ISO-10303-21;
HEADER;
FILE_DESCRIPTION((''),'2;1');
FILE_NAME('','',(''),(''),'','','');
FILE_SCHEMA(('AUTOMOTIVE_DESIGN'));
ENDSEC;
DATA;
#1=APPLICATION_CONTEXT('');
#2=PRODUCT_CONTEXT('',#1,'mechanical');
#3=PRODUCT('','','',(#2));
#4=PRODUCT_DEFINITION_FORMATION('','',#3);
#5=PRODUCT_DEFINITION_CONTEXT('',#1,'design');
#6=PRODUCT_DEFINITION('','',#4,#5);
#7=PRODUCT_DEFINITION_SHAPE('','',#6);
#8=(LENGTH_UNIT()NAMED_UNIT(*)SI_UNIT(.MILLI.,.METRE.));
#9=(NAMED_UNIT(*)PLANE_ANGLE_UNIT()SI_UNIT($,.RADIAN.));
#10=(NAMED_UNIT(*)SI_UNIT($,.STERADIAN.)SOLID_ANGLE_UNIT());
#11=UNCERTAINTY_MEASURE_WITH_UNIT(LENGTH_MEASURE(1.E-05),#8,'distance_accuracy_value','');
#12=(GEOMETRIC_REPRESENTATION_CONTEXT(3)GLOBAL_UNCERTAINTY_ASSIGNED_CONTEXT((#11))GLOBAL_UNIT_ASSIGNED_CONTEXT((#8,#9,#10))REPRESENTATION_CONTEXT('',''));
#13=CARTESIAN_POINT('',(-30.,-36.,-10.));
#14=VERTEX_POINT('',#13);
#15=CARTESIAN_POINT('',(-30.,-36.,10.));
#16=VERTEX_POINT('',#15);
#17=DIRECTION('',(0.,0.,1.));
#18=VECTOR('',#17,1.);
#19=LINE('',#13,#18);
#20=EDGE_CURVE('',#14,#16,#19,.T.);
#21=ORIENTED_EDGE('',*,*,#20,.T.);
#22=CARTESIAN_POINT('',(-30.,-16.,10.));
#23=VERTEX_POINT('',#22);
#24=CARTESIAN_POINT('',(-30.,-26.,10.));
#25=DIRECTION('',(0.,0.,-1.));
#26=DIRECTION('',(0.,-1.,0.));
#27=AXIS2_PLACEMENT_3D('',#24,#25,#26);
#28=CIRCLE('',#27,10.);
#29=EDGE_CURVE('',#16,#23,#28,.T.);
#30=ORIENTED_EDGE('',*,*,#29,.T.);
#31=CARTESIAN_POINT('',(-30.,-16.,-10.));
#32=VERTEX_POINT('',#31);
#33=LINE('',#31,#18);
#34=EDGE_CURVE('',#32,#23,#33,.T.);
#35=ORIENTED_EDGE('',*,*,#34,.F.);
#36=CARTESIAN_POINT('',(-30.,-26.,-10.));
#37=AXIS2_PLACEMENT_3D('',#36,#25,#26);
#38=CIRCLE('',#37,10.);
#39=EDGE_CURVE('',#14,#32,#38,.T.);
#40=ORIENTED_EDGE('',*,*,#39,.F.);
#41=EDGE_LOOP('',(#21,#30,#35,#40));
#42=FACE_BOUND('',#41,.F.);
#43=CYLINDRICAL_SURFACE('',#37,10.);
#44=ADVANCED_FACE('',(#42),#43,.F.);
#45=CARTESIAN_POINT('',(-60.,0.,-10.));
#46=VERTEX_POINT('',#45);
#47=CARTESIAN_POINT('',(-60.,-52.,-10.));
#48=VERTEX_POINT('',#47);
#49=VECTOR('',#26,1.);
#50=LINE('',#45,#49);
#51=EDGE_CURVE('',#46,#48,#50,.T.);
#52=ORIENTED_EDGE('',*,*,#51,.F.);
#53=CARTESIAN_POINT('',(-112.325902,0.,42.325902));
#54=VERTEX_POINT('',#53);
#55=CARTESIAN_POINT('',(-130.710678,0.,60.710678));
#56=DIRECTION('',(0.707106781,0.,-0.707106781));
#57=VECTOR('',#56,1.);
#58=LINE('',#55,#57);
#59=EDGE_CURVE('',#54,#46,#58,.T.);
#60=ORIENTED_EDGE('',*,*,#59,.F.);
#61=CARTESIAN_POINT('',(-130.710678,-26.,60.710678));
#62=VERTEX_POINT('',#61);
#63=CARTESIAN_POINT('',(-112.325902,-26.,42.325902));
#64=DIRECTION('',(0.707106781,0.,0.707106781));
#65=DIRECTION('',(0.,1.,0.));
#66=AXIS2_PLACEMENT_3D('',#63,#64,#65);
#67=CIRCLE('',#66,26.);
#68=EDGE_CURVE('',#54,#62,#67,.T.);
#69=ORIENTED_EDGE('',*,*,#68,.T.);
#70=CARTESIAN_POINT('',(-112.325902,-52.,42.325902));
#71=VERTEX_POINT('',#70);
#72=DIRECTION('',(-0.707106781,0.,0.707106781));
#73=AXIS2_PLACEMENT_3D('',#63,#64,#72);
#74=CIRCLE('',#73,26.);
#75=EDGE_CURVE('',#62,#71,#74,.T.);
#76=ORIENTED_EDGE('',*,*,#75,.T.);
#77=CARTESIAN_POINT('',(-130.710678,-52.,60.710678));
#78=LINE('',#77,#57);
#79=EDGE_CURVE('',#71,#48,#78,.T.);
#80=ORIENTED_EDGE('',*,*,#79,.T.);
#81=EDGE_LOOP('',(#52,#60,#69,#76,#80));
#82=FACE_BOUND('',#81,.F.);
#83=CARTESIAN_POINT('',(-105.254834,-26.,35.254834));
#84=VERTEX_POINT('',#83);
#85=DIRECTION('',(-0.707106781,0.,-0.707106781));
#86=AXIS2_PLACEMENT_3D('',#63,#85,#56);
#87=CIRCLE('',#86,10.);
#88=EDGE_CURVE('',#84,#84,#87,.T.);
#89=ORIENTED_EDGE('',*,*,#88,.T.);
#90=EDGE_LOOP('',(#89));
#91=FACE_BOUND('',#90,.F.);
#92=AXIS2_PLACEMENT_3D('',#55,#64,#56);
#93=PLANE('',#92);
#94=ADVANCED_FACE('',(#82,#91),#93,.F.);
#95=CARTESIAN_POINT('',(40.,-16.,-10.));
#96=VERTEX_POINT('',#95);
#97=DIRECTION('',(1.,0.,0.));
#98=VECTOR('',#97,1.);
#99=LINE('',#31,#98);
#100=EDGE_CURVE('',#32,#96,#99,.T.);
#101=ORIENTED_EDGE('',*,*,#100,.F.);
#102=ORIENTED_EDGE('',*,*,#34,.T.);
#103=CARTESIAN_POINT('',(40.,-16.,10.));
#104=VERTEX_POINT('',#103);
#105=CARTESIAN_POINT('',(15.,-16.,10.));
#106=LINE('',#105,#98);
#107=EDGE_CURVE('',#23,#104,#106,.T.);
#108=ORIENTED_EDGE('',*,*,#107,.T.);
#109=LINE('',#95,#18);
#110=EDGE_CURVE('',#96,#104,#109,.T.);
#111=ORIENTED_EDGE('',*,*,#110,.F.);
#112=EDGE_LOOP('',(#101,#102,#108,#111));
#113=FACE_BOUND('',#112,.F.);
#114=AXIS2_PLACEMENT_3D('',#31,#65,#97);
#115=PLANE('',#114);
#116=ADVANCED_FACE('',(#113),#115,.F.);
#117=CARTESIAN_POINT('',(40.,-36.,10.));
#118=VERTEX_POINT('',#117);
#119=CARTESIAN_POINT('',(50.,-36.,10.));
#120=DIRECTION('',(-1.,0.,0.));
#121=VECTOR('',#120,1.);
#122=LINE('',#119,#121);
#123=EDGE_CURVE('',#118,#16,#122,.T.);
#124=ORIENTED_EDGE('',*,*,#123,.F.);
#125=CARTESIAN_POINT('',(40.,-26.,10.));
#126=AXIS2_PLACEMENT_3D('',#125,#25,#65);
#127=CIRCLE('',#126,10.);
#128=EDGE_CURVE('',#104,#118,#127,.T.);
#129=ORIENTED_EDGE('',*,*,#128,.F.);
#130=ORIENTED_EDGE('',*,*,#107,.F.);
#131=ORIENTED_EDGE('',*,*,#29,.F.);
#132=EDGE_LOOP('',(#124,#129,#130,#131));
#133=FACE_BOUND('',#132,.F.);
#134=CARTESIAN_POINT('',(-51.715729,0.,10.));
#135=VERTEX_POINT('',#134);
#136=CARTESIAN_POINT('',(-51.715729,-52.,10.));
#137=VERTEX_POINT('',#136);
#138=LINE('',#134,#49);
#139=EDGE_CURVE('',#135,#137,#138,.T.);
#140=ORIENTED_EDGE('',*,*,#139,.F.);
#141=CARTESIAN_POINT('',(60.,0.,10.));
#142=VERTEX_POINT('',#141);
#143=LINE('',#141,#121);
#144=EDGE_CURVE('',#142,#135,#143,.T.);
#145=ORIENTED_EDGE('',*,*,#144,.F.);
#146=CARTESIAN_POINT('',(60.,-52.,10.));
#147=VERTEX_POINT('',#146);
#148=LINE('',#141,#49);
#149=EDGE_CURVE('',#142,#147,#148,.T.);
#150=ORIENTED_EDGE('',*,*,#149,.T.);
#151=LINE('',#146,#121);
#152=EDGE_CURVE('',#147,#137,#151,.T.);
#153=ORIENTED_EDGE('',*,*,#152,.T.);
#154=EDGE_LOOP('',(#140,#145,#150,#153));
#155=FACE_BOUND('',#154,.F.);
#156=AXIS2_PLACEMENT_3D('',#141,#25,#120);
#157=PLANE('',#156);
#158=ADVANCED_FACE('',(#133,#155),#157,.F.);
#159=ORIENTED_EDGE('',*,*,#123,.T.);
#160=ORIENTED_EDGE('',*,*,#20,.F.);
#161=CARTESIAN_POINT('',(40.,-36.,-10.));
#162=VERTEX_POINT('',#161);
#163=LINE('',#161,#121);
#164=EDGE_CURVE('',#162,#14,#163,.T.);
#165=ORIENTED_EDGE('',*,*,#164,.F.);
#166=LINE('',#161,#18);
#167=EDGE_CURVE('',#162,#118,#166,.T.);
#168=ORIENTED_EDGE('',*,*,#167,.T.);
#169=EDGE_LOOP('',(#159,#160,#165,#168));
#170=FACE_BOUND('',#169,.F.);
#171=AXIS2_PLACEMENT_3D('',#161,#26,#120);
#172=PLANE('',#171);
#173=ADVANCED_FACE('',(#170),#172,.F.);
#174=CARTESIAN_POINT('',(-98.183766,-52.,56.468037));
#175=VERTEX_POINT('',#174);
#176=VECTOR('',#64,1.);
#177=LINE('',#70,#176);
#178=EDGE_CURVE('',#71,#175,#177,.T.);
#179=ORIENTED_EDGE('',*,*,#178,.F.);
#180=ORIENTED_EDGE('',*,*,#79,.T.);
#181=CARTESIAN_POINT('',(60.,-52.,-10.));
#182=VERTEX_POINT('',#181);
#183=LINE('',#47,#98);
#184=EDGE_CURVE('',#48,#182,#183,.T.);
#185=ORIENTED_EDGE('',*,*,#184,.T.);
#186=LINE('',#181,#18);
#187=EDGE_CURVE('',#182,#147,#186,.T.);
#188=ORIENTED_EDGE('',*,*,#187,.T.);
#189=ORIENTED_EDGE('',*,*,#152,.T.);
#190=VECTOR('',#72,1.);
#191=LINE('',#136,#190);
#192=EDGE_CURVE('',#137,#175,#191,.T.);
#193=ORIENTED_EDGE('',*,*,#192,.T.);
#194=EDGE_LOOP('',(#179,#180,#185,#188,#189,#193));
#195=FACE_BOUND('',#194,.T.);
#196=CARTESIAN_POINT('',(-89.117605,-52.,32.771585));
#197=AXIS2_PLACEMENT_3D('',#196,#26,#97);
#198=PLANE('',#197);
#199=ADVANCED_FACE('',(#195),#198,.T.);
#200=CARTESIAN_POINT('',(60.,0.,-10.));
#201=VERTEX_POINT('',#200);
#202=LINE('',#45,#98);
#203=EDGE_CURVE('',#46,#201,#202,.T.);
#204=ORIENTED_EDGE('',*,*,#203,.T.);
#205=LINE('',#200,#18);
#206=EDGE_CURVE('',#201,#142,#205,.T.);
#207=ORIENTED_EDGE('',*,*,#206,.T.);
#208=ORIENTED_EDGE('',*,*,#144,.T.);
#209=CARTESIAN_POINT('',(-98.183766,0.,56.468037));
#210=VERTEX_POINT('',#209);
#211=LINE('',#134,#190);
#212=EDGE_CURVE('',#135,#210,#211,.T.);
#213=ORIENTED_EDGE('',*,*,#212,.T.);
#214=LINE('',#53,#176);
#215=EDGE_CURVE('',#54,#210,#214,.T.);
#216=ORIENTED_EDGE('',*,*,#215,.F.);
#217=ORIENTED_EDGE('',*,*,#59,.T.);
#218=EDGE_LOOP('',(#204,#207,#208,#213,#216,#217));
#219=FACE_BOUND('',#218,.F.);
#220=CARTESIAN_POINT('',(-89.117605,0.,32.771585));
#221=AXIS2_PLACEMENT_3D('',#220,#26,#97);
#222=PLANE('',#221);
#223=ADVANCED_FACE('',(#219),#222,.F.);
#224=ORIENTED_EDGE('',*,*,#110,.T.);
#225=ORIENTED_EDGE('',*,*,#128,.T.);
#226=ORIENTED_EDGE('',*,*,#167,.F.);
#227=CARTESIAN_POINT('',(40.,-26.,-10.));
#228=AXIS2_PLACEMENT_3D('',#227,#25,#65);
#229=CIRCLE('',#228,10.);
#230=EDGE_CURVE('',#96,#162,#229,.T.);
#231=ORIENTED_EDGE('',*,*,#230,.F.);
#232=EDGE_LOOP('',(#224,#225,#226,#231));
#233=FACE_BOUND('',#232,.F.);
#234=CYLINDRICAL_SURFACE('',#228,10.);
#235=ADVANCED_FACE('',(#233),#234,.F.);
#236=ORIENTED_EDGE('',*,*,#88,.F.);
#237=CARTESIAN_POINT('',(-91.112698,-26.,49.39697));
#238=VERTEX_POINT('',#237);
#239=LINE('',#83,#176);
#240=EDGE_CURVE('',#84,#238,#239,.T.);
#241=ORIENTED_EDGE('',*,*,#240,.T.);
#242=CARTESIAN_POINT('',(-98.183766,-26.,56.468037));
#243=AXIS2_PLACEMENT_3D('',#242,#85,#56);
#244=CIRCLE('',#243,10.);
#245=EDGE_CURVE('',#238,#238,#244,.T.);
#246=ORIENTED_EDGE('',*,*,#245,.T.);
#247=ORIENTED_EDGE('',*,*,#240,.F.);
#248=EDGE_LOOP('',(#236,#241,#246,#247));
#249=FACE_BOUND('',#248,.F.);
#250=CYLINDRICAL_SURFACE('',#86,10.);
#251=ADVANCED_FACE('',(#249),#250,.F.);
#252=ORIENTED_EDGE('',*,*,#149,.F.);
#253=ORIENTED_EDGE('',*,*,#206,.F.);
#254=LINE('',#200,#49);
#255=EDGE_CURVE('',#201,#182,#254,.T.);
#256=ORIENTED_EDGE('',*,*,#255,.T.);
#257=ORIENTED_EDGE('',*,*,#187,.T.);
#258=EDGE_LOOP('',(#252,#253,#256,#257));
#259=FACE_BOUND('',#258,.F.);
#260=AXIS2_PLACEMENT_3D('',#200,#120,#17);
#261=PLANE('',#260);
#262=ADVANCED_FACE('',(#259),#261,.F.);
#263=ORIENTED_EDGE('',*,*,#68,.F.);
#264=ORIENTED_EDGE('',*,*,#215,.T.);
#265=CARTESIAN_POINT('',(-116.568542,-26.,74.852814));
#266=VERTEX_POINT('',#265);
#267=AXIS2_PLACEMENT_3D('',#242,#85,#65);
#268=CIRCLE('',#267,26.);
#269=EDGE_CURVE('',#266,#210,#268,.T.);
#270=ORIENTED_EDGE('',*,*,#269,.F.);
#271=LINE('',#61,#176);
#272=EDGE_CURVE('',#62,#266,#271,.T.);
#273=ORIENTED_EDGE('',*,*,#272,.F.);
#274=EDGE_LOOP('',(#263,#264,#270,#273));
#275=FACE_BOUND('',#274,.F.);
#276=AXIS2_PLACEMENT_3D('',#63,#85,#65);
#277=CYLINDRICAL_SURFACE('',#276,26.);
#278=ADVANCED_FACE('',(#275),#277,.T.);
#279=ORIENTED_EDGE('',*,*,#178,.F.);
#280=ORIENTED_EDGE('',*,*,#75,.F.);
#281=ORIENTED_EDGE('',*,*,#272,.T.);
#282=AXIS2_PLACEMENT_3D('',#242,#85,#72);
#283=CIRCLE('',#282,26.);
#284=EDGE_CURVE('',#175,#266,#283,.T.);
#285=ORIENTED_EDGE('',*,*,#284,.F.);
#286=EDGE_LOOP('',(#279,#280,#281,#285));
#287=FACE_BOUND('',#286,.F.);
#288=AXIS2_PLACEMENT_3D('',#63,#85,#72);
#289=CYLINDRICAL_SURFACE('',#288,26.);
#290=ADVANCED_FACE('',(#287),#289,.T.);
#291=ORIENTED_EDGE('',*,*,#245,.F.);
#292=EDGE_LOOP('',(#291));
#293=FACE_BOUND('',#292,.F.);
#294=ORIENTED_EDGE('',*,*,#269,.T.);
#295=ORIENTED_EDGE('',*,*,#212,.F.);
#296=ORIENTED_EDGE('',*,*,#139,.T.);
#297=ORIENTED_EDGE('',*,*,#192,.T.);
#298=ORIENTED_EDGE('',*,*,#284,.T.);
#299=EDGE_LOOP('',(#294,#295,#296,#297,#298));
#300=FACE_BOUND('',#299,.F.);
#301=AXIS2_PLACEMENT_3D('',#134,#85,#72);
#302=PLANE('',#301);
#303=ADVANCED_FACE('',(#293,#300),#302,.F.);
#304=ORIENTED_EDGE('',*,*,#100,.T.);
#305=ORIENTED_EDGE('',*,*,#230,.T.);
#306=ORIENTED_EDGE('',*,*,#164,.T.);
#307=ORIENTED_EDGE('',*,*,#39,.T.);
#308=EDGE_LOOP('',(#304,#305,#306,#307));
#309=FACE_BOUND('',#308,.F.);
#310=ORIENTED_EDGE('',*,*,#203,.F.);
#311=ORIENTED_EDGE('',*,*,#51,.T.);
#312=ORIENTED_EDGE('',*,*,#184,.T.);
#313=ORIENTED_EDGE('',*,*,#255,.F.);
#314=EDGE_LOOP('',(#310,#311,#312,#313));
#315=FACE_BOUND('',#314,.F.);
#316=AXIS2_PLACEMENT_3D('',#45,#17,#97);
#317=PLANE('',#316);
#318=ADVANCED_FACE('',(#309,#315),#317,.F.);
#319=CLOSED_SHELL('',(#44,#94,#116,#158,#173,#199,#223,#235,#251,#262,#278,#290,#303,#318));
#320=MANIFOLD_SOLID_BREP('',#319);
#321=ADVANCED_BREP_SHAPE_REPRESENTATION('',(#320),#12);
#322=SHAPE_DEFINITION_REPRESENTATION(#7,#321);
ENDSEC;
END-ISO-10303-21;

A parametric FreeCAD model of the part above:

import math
import FreeCAD as App
import Part
import Sketcher
Q = App.Units.Quantity


def add_polygon(sketch, points):
    """Adds a closed chain of lines whose ends are joined by coincident constraints."""
    first, n = sketch.GeometryCount, len(points)
    for a, b in zip(points, points[1:] + points[:1]):
        sketch.addGeometry(Part.LineSegment(App.Vector(*a, 0), App.Vector(*b, 0)), False)
    for i in range(n):
        sketch.addConstraint(Sketcher.Constraint("Coincident", first + i, 2, first + (i + 1) % n, 1))

doc = App.newDocument("Part")
body = doc.addObject("PartDesign::Body", "Body")

sketch1 = body.newObject("Sketcher::SketchObject", "Sketch")
sketch1.AttachmentSupport = (doc.getObject("XZ_Plane"), [""])
sketch1.MapMode = "FlatFace"
add_polygon(sketch1, [(-130.710678, 60.710678), (-60, -10), (60, -10), (60, 10), (-51.715729, 10), (-116.568542, 74.852814)])
sketch1.addConstraint([
    Sketcher.Constraint("Horizontal", 1),
    Sketcher.Constraint("Vertical", 2),
    Sketcher.Constraint("Horizontal", 3),
    Sketcher.Constraint("Symmetric", 0, 2, 2, 2, -1, 1),
    Sketcher.Constraint("Parallel", 0, 4),
    Sketcher.Constraint("Perpendicular", 4, 5),
    Sketcher.Constraint("DistanceX", 1, 1, 1, 2, 120.0),
    Sketcher.Constraint("DistanceY", 2, 1, 2, 2, 20.0),
    Sketcher.Constraint("Angle", 0, Q("-45 deg")),
    Sketcher.Constraint("Distance", 0, 100.0),
    Sketcher.Constraint("Distance", 5, 20.0),
])
pad1 = body.newObject("PartDesign::Pad", "Pad")
pad1.Profile = sketch1
pad1.Length = 52

sketch2 = body.newObject("Sketcher::SketchObject", "Sketch001")
sketch2.Placement = App.Placement(App.Vector(-35, 0, -35), App.Rotation(App.Vector(0.707106781, 0, -0.707106781), App.Vector(0, -0.999999999, 0), App.Vector(-0.707106781, 0, -0.707106781), "ZXY"))
sketch2.addGeometry([
    Part.Circle(App.Vector(-109.355339, 26, 0), App.Vector(0, 0, 1), 10),
    Part.ArcOfCircle(Part.Circle(App.Vector(-109.355339, 26, 0), App.Vector(0, 0, 1), 26), math.radians(90), math.radians(180)),
    Part.LineSegment(App.Vector(-109.355339, 52, 0), App.Vector(-135.355339, 52, 0)),
    Part.LineSegment(App.Vector(-135.355339, 52, 0), App.Vector(-135.355339, 26, 0)),
    Part.LineSegment(App.Vector(-135.355339, 0, 0), App.Vector(-109.355339, 0, 0)),
    Part.ArcOfCircle(Part.Circle(App.Vector(-109.355339, 26, 0), App.Vector(0, 0, 1), 26), math.radians(180), math.radians(270)),
    Part.LineSegment(App.Vector(-135.355339, 26, 0), App.Vector(-135.355339, 0, 0)),
], False)
sketch2.addConstraint([
    Sketcher.Constraint("Tangent", 1, 1, 2, 1),
    Sketcher.Constraint("Coincident", 2, 2, 3, 1),
    Sketcher.Constraint("Tangent", 3, 2, 1, 2),
    Sketcher.Constraint("Tangent", 4, 2, 5, 2),
    Sketcher.Constraint("Tangent", 5, 1, 6, 1),
    Sketcher.Constraint("Coincident", 6, 2, 4, 1),
    Sketcher.Constraint("Horizontal", 2),
    Sketcher.Constraint("Vertical", 3),
    Sketcher.Constraint("Horizontal", 4),
    Sketcher.Constraint("Vertical", 6),
    Sketcher.Constraint("Coincident", 1, 3, 0, 3),
    Sketcher.Constraint("Coincident", 5, 3, 0, 3),
    Sketcher.Constraint("Equal", 1, 5),
    Sketcher.Constraint("PointOnObject", 4, 2, -1),
    Sketcher.Constraint("Diameter", 0, 20.0),
    Sketcher.Constraint("Radius", 1, 26.0),
    Sketcher.Constraint("DistanceX", 0, 3, -1, 1, 109.355339),
])
pocket1 = body.newObject("PartDesign::Pocket", "Pocket")
pocket1.Profile = sketch2
pocket1.Type = "ThroughAll"

sketch3 = body.newObject("Sketcher::SketchObject", "Sketch002")
sketch3.AttachmentSupport = (doc.getObject("XY_Plane"), [""])
sketch3.MapMode = "FlatFace"
sketch3.AttachmentOffset = App.Placement(App.Vector(0, 0, -10), App.Rotation())
sketch3.addGeometry([
    Part.ArcOfCircle(Part.Circle(App.Vector(40, -26, 0), App.Vector(0, 0, 1), 10), math.radians(-90), math.radians(90)),
    Part.LineSegment(App.Vector(40, -36, 0), App.Vector(-30, -36, 0)),
    Part.ArcOfCircle(Part.Circle(App.Vector(-30, -26, 0), App.Vector(0, 0, 1), 10), math.radians(90), math.radians(270)),
    Part.LineSegment(App.Vector(-30, -16, 0), App.Vector(40, -16, 0)),
], False)
sketch3.addConstraint([
    Sketcher.Constraint("Tangent", 0, 1, 1, 1),
    Sketcher.Constraint("Tangent", 1, 2, 2, 2),
    Sketcher.Constraint("Tangent", 2, 1, 3, 1),
    Sketcher.Constraint("Tangent", 3, 2, 0, 2),
    Sketcher.Constraint("Horizontal", 1),
    Sketcher.Constraint("Horizontal", 3),
    Sketcher.Constraint("Radius", 0, 10.0),
    Sketcher.Constraint("DistanceX", 1, 2, 1, 1, 70.0),
    Sketcher.Constraint("DistanceX", -1, 1, 0, 3, 40.0),
    Sketcher.Constraint("DistanceY", 0, 3, -1, 1, 26.0),
])
pocket2 = body.newObject("PartDesign::Pocket", "Pocket001")
pocket2.Profile = sketch3
pocket2.Type = "ThroughAll"
pocket2.Reversed = True

doc.recompute()
